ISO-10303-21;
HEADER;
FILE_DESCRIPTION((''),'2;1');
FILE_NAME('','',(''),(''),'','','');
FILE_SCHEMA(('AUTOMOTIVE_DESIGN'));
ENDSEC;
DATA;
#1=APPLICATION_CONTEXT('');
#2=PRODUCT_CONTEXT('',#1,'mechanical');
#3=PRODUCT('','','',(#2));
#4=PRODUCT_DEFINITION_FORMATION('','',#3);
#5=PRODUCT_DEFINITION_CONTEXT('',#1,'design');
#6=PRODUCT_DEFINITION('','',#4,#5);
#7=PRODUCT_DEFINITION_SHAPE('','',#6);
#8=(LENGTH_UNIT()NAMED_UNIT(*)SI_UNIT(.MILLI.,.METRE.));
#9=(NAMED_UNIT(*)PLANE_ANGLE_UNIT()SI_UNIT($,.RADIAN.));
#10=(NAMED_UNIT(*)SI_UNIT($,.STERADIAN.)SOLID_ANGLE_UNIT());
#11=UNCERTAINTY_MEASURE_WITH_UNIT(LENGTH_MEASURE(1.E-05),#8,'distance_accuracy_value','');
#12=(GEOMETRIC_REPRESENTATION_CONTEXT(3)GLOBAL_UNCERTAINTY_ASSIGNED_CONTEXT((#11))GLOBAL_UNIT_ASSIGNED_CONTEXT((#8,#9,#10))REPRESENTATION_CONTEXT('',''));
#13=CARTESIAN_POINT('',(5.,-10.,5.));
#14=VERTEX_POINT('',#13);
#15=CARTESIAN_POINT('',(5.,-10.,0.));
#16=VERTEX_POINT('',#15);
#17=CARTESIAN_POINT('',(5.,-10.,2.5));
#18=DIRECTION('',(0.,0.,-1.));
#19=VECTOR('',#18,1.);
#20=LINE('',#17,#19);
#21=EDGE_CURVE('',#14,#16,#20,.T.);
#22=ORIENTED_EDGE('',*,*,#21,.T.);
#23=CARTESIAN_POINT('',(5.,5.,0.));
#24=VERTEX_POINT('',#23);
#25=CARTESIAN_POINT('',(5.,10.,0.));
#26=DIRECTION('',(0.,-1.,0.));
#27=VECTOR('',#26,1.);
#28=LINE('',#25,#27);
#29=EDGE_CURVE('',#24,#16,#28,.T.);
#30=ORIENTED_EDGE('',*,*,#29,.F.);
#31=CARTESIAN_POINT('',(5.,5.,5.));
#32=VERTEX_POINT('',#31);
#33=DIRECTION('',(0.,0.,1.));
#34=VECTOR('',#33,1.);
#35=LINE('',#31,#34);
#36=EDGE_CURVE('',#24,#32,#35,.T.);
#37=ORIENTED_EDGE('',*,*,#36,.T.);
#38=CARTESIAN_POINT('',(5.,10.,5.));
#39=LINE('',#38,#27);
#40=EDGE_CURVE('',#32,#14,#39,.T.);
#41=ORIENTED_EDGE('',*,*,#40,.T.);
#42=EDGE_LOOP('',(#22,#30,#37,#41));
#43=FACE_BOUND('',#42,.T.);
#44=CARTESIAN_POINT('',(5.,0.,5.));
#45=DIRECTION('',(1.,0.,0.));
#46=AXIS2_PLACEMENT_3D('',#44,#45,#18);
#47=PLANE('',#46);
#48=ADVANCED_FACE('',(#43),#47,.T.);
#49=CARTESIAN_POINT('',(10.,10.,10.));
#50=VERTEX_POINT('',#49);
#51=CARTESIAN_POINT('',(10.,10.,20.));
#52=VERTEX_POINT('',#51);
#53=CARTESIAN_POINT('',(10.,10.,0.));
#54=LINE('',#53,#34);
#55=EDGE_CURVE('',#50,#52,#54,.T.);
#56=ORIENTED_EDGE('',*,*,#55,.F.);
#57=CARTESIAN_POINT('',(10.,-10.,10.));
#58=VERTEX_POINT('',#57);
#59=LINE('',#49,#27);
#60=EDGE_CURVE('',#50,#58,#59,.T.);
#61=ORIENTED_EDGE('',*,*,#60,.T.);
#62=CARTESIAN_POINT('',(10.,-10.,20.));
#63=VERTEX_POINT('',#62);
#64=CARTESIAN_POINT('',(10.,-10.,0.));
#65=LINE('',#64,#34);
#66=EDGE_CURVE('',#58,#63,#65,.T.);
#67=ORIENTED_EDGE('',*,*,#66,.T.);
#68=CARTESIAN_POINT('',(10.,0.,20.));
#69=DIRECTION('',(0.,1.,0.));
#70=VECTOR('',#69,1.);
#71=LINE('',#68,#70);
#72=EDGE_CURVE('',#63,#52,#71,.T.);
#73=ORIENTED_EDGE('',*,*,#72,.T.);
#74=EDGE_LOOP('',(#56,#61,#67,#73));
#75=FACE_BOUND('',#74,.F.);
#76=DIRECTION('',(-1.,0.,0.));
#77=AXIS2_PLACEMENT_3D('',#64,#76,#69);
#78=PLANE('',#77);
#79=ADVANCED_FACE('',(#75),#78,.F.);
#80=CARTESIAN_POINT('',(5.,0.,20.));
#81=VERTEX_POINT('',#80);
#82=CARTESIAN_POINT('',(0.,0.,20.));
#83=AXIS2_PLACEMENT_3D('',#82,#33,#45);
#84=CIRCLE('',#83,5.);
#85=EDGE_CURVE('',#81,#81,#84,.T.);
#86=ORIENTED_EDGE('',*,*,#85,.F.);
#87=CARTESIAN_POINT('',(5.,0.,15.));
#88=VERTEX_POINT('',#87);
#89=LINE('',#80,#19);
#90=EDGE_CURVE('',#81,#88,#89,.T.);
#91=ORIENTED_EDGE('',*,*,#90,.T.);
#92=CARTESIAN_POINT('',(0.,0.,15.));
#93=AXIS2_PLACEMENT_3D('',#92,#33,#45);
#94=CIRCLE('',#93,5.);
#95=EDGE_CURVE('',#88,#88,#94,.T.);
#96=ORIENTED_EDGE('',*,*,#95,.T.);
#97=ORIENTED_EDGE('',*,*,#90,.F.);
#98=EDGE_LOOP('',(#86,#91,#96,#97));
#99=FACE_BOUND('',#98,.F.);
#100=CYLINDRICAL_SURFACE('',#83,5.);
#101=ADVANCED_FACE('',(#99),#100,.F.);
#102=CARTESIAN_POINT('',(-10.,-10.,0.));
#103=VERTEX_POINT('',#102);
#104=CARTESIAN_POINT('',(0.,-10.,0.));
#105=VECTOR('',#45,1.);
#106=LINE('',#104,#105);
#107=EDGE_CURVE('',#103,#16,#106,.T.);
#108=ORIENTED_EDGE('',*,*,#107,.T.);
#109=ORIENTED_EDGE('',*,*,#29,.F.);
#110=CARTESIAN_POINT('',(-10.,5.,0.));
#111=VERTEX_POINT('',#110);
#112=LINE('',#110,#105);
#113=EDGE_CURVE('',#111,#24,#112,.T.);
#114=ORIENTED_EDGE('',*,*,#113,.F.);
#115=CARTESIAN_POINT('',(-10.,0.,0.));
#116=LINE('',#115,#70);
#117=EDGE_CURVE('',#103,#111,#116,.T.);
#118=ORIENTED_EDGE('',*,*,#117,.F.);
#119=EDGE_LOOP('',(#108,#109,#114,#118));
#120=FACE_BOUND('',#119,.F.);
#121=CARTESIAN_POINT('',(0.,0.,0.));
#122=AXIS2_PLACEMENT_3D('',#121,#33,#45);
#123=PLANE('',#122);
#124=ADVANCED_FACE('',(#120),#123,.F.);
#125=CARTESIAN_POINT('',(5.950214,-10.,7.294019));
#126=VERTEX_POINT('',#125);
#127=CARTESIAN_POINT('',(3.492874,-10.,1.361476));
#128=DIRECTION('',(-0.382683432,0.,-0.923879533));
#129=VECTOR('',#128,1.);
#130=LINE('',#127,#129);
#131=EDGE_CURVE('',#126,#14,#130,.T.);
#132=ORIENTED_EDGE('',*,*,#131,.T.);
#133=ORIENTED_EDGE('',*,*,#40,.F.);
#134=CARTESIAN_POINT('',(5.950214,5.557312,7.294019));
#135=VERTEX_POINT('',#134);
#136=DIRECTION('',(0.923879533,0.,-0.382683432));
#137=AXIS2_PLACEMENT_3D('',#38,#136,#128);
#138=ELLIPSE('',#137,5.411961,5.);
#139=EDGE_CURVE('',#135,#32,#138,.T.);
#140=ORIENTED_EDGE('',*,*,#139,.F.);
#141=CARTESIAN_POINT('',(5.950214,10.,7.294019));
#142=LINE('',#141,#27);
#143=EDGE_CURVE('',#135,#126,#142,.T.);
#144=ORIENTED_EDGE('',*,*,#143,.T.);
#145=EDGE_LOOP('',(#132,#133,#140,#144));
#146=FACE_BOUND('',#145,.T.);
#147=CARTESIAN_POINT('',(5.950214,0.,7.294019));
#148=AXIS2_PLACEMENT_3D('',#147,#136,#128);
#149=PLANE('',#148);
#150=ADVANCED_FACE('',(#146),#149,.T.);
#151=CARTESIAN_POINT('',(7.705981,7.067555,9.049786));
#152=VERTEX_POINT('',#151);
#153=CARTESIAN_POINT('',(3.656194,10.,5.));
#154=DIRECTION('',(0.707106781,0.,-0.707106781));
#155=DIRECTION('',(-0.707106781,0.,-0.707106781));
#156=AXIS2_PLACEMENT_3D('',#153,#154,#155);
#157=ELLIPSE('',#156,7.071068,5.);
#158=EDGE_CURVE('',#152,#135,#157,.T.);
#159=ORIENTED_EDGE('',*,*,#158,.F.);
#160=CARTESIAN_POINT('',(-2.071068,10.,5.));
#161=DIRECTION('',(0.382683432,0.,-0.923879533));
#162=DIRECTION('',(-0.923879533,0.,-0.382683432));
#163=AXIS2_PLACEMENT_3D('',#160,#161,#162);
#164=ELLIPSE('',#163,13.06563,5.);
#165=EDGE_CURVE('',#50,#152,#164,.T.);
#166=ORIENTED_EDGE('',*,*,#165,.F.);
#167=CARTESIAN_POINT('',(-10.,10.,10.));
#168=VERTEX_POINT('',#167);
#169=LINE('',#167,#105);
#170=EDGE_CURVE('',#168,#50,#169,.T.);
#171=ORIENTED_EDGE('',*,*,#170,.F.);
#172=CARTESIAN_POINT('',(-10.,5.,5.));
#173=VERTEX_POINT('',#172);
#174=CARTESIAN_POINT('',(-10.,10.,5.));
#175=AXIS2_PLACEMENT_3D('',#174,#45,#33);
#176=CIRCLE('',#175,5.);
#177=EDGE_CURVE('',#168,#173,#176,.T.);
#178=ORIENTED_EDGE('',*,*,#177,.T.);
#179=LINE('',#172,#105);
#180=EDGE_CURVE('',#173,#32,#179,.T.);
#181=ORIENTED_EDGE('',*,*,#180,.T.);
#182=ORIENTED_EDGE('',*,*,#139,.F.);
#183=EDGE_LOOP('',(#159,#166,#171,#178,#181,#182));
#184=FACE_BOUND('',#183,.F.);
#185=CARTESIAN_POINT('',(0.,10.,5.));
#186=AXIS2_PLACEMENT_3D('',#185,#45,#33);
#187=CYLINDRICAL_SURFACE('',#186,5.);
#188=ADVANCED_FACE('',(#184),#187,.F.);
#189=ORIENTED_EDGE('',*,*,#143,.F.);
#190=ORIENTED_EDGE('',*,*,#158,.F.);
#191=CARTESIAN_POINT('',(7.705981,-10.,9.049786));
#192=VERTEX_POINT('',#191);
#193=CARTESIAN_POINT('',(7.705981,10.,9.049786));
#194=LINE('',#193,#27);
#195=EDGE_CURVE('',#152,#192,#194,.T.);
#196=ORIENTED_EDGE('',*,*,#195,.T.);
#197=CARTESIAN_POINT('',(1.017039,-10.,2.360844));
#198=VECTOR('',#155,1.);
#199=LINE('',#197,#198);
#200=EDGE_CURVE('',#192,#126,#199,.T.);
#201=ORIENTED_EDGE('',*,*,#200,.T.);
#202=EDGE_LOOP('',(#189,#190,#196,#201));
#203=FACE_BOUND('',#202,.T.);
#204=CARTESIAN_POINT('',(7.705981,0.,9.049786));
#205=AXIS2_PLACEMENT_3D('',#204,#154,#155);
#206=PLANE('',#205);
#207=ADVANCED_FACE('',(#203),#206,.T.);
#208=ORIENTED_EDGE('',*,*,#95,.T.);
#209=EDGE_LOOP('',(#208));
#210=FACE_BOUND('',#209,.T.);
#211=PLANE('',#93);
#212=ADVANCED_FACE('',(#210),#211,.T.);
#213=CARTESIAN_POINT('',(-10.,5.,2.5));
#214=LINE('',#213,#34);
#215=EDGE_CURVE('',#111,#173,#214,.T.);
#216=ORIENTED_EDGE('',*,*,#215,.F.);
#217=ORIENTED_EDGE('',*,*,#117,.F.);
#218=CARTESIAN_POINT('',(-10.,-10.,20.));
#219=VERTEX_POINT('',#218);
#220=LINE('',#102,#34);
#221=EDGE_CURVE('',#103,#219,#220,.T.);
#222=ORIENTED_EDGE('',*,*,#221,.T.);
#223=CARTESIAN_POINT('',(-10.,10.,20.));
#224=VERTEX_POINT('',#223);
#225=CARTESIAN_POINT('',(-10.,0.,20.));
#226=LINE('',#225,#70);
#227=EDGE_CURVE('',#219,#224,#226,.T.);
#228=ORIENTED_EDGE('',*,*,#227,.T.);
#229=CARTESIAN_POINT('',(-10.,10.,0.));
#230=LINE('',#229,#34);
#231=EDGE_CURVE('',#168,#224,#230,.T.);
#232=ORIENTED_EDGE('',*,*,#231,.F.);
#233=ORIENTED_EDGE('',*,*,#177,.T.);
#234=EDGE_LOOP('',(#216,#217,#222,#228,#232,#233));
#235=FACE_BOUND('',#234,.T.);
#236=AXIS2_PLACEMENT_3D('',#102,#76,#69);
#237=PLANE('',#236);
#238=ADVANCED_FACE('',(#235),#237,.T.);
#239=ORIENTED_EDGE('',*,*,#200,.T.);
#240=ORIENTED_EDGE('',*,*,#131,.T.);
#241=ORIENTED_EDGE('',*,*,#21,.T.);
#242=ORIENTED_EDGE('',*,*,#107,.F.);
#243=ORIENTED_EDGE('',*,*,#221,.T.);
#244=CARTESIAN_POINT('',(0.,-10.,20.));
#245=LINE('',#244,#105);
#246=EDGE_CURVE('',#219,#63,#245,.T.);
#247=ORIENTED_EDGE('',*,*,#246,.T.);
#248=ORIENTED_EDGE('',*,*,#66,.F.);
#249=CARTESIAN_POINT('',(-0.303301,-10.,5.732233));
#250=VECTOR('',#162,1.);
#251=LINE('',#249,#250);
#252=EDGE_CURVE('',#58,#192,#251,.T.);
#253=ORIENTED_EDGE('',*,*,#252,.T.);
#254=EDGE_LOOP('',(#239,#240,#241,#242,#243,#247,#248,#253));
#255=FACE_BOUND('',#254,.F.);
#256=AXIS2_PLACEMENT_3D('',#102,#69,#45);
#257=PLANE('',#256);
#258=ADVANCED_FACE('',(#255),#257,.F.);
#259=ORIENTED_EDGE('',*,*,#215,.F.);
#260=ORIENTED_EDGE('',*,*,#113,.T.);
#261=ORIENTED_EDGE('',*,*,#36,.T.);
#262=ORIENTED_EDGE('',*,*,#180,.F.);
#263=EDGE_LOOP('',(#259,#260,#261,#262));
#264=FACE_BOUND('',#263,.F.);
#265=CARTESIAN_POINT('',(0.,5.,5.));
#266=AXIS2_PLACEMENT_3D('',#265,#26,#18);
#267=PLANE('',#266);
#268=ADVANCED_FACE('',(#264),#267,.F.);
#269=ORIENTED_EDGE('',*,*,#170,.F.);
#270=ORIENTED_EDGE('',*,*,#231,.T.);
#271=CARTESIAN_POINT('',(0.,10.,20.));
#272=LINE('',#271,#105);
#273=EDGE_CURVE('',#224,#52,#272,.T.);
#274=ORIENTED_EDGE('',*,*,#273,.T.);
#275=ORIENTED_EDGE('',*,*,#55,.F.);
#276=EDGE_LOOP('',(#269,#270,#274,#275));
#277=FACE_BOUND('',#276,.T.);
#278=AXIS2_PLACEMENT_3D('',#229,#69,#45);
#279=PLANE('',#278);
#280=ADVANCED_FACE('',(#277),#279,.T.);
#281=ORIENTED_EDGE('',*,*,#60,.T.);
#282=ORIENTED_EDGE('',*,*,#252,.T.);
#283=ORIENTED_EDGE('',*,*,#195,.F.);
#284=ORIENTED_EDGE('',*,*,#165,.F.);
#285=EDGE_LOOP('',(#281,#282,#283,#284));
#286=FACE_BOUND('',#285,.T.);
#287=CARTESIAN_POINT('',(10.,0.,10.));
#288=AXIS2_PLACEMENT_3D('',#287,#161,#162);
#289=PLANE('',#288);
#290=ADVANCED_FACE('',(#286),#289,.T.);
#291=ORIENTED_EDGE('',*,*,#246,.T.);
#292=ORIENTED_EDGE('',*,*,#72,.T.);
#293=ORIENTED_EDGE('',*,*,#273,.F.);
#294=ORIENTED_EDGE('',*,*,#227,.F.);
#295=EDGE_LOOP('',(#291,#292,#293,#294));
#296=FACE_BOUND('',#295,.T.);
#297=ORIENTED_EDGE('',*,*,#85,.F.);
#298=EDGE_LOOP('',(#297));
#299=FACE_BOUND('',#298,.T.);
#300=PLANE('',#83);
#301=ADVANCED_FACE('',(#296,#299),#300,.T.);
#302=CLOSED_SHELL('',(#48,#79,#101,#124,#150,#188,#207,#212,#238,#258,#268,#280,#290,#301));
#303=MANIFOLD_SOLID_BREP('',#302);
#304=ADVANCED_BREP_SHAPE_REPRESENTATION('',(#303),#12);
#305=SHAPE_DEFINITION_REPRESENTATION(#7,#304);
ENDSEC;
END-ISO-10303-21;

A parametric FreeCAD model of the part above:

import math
import FreeCAD as App
import Part
import Sketcher
Q = App.Units.Quantity

doc = App.newDocument("Part")
body = doc.addObject("PartDesign::Body", "Body")

sketch1 = doc.addObject("Sketcher::SketchObject", "Sketch")
body.addObject(sketch1)
sketch1.AttachmentSupport = (doc.XY_Plane, [""])
sketch1.MapMode = "FlatFace"
sketch1.addGeometry(Part.LineSegment(App.Vector(-10, 10, 0), App.Vector(-10, -10, 0)), False)
sketch1.addGeometry(Part.LineSegment(App.Vector(-10, -10, 0), App.Vector(10, -10, 0)), False)
sketch1.addGeometry(Part.LineSegment(App.Vector(10, -10, 0), App.Vector(10, 10, 0)), False)
sketch1.addGeometry(Part.LineSegment(App.Vector(10, 10, 0), App.Vector(-10, 10, 0)), False)
sketch1.addConstraint(Sketcher.Constraint("Coincident", 0, 2, 1, 1))
sketch1.addConstraint(Sketcher.Constraint("Coincident", 1, 2, 2, 1))
sketch1.addConstraint(Sketcher.Constraint("Coincident", 2, 2, 3, 1))
sketch1.addConstraint(Sketcher.Constraint("Coincident", 3, 2, 0, 1))
sketch1.addConstraint(Sketcher.Constraint("Vertical", 0))
sketch1.addConstraint(Sketcher.Constraint("Horizontal", 1))
sketch1.addConstraint(Sketcher.Constraint("Vertical", 2))
sketch1.addConstraint(Sketcher.Constraint("Horizontal", 3))
sketch1.addConstraint(Sketcher.Constraint("Symmetric", 0, 2, 2, 2, -1, 1))
sketch1.addConstraint(Sketcher.Constraint("Equal", 3, 0))
sketch1.addConstraint(Sketcher.Constraint("DistanceX", 1, 1, 1, 2, 20.0))
pad1 = doc.addObject("PartDesign::Pad", "Pad")
body.addObject(pad1)
pad1.Profile = sketch1
pad1.Length = 20

sketch2 = doc.addObject("Sketcher::SketchObject", "Sketch001")
body.addObject(sketch2)
sketch2.AttachmentSupport = (doc.XZ_Plane, [""])
sketch2.MapMode = "FlatFace"
sketch2.addGeometry(Part.LineSegment(App.Vector(5, 5, 0), App.Vector(5, 0, 0)), False)
sketch2.addGeometry(Part.LineSegment(App.Vector(5, 0, 0), App.Vector(10, 0, 0)), False)
sketch2.addGeometry(Part.LineSegment(App.Vector(10, 0, 0), App.Vector(10, 10, 0)), False)
sketch2.addGeometry(Part.LineSegment(App.Vector(10, 10, 0), App.Vector(7.705981, 9.049786, 0)), False)
sketch2.addGeometry(Part.LineSegment(App.Vector(7.705981, 9.049786, 0), App.Vector(5.950214, 7.294019, 0)), False)
sketch2.addGeometry(Part.LineSegment(App.Vector(5.950214, 7.294019, 0), App.Vector(5, 5, 0)), False)
sketch2.addConstraint(Sketcher.Constraint("Coincident", 0, 2, 1, 1))
sketch2.addConstraint(Sketcher.Constraint("Coincident", 1, 2, 2, 1))
sketch2.addConstraint(Sketcher.Constraint("Coincident", 2, 2, 3, 1))
sketch2.addConstraint(Sketcher.Constraint("Coincident", 3, 2, 4, 1))
sketch2.addConstraint(Sketcher.Constraint("Coincident", 4, 2, 5, 1))
sketch2.addConstraint(Sketcher.Constraint("Coincident", 5, 2, 0, 1))
sketch2.addConstraint(Sketcher.Constraint("Vertical", 0))
sketch2.addConstraint(Sketcher.Constraint("Horizontal", 1))
sketch2.addConstraint(Sketcher.Constraint("Vertical", 2))
sketch2.addConstraint(Sketcher.Constraint("PointOnObject", 0, 2, -1))
sketch2.addConstraint(Sketcher.Constraint("Equal", 1, 0))
sketch2.addConstraint(Sketcher.Constraint("Equal", 3, 4))
sketch2.addConstraint(Sketcher.Constraint("Equal", 4, 5))
sketch2.addConstraint(Sketcher.Constraint("DistanceX", 1, 1, 1, 2, 5.0))
sketch2.addConstraint(Sketcher.Constraint("DistanceY", 2, 1, 2, 2, 10.0))
sketch2.addConstraint(Sketcher.Constraint("Angle", 4, Q("-135 deg")))
sketch2.addConstraint(Sketcher.Constraint("DistanceX", -1, 1, 0, 2, 5.0))
sketch2.addConstraint(Sketcher.Constraint("Angle", 3, Q("-157.5 deg")))
pocket1 = doc.addObject("PartDesign::Pocket", "Pocket")
body.addObject(pocket1)
pocket1.Profile = sketch2
pocket1.Type = "ThroughAll"
pocket1.Midplane = True

sketch3 = doc.addObject("Sketcher::SketchObject", "Sketch002")
body.addObject(sketch3)
sketch3.AttachmentSupport = (doc.YZ_Plane, [""])
sketch3.MapMode = "FlatFace"
sketch3.addGeometry(Part.LineSegment(App.Vector(5, 5, 0), App.Vector(5, 0, 0)), False)
sketch3.addGeometry(Part.LineSegment(App.Vector(5, 0, 0), App.Vector(10, 0, 0)), False)
sketch3.addGeometry(Part.LineSegment(App.Vector(10, 0, 0), App.Vector(10, 10, 0)), False)
sketch3.addGeometry(Part.ArcOfCircle(Part.Circle(App.Vector(10, 5, 0), App.Vector(0, 0, 1), 5), math.radians(90), math.radians(180)), False)
sketch3.addConstraint(Sketcher.Constraint("Coincident", 0, 2, 1, 1))
sketch3.addConstraint(Sketcher.Constraint("Coincident", 1, 2, 2, 1))
sketch3.addConstraint(Sketcher.Constraint("Coincident", 2, 2, 3, 1))
sketch3.addConstraint(Sketcher.Constraint("Tangent", 3, 2, 0, 1))
sketch3.addConstraint(Sketcher.Constraint("Vertical", 0))
sketch3.addConstraint(Sketcher.Constraint("Horizontal", 1))
sketch3.addConstraint(Sketcher.Constraint("Vertical", 2))
sketch3.addConstraint(Sketcher.Constraint("PointOnObject", 0, 2, -1))
sketch3.addConstraint(Sketcher.Constraint("Vertical", 3, 3, 1, 2))
sketch3.addConstraint(Sketcher.Constraint("Equal", 1, 0))
sketch3.addConstraint(Sketcher.Constraint("Radius", 3, 5.0))
sketch3.addConstraint(Sketcher.Constraint("DistanceX", -1, 1, 3, 3, 10.0))
pocket2 = doc.addObject("PartDesign::Pocket", "Pocket001")
body.addObject(pocket2)
pocket2.Profile = sketch3
pocket2.Type = "ThroughAll"
pocket2.Midplane = True

sketch4 = doc.addObject("Sketcher::SketchObject", "Sketch003")
body.addObject(sketch4)
sketch4.AttachmentSupport = (doc.XY_Plane, [""])
sketch4.MapMode = "FlatFace"
sketch4.AttachmentOffset = App.Placement(App.Vector(0, 0, 20), App.Rotation())
sketch4.addGeometry(Part.Circle(App.Vector(0, 0, 0), App.Vector(0, 0, 1), 5), False)
sketch4.addConstraint(Sketcher.Constraint("Coincident", 0, 3, -1, 1))
sketch4.addConstraint(Sketcher.Constraint("Diameter", 0, 10.0))
pocket3 = doc.addObject("PartDesign::Pocket", "Pocket002")
body.addObject(pocket3)
pocket3.Profile = sketch4
pocket3.Length = 5

doc.recompute()
